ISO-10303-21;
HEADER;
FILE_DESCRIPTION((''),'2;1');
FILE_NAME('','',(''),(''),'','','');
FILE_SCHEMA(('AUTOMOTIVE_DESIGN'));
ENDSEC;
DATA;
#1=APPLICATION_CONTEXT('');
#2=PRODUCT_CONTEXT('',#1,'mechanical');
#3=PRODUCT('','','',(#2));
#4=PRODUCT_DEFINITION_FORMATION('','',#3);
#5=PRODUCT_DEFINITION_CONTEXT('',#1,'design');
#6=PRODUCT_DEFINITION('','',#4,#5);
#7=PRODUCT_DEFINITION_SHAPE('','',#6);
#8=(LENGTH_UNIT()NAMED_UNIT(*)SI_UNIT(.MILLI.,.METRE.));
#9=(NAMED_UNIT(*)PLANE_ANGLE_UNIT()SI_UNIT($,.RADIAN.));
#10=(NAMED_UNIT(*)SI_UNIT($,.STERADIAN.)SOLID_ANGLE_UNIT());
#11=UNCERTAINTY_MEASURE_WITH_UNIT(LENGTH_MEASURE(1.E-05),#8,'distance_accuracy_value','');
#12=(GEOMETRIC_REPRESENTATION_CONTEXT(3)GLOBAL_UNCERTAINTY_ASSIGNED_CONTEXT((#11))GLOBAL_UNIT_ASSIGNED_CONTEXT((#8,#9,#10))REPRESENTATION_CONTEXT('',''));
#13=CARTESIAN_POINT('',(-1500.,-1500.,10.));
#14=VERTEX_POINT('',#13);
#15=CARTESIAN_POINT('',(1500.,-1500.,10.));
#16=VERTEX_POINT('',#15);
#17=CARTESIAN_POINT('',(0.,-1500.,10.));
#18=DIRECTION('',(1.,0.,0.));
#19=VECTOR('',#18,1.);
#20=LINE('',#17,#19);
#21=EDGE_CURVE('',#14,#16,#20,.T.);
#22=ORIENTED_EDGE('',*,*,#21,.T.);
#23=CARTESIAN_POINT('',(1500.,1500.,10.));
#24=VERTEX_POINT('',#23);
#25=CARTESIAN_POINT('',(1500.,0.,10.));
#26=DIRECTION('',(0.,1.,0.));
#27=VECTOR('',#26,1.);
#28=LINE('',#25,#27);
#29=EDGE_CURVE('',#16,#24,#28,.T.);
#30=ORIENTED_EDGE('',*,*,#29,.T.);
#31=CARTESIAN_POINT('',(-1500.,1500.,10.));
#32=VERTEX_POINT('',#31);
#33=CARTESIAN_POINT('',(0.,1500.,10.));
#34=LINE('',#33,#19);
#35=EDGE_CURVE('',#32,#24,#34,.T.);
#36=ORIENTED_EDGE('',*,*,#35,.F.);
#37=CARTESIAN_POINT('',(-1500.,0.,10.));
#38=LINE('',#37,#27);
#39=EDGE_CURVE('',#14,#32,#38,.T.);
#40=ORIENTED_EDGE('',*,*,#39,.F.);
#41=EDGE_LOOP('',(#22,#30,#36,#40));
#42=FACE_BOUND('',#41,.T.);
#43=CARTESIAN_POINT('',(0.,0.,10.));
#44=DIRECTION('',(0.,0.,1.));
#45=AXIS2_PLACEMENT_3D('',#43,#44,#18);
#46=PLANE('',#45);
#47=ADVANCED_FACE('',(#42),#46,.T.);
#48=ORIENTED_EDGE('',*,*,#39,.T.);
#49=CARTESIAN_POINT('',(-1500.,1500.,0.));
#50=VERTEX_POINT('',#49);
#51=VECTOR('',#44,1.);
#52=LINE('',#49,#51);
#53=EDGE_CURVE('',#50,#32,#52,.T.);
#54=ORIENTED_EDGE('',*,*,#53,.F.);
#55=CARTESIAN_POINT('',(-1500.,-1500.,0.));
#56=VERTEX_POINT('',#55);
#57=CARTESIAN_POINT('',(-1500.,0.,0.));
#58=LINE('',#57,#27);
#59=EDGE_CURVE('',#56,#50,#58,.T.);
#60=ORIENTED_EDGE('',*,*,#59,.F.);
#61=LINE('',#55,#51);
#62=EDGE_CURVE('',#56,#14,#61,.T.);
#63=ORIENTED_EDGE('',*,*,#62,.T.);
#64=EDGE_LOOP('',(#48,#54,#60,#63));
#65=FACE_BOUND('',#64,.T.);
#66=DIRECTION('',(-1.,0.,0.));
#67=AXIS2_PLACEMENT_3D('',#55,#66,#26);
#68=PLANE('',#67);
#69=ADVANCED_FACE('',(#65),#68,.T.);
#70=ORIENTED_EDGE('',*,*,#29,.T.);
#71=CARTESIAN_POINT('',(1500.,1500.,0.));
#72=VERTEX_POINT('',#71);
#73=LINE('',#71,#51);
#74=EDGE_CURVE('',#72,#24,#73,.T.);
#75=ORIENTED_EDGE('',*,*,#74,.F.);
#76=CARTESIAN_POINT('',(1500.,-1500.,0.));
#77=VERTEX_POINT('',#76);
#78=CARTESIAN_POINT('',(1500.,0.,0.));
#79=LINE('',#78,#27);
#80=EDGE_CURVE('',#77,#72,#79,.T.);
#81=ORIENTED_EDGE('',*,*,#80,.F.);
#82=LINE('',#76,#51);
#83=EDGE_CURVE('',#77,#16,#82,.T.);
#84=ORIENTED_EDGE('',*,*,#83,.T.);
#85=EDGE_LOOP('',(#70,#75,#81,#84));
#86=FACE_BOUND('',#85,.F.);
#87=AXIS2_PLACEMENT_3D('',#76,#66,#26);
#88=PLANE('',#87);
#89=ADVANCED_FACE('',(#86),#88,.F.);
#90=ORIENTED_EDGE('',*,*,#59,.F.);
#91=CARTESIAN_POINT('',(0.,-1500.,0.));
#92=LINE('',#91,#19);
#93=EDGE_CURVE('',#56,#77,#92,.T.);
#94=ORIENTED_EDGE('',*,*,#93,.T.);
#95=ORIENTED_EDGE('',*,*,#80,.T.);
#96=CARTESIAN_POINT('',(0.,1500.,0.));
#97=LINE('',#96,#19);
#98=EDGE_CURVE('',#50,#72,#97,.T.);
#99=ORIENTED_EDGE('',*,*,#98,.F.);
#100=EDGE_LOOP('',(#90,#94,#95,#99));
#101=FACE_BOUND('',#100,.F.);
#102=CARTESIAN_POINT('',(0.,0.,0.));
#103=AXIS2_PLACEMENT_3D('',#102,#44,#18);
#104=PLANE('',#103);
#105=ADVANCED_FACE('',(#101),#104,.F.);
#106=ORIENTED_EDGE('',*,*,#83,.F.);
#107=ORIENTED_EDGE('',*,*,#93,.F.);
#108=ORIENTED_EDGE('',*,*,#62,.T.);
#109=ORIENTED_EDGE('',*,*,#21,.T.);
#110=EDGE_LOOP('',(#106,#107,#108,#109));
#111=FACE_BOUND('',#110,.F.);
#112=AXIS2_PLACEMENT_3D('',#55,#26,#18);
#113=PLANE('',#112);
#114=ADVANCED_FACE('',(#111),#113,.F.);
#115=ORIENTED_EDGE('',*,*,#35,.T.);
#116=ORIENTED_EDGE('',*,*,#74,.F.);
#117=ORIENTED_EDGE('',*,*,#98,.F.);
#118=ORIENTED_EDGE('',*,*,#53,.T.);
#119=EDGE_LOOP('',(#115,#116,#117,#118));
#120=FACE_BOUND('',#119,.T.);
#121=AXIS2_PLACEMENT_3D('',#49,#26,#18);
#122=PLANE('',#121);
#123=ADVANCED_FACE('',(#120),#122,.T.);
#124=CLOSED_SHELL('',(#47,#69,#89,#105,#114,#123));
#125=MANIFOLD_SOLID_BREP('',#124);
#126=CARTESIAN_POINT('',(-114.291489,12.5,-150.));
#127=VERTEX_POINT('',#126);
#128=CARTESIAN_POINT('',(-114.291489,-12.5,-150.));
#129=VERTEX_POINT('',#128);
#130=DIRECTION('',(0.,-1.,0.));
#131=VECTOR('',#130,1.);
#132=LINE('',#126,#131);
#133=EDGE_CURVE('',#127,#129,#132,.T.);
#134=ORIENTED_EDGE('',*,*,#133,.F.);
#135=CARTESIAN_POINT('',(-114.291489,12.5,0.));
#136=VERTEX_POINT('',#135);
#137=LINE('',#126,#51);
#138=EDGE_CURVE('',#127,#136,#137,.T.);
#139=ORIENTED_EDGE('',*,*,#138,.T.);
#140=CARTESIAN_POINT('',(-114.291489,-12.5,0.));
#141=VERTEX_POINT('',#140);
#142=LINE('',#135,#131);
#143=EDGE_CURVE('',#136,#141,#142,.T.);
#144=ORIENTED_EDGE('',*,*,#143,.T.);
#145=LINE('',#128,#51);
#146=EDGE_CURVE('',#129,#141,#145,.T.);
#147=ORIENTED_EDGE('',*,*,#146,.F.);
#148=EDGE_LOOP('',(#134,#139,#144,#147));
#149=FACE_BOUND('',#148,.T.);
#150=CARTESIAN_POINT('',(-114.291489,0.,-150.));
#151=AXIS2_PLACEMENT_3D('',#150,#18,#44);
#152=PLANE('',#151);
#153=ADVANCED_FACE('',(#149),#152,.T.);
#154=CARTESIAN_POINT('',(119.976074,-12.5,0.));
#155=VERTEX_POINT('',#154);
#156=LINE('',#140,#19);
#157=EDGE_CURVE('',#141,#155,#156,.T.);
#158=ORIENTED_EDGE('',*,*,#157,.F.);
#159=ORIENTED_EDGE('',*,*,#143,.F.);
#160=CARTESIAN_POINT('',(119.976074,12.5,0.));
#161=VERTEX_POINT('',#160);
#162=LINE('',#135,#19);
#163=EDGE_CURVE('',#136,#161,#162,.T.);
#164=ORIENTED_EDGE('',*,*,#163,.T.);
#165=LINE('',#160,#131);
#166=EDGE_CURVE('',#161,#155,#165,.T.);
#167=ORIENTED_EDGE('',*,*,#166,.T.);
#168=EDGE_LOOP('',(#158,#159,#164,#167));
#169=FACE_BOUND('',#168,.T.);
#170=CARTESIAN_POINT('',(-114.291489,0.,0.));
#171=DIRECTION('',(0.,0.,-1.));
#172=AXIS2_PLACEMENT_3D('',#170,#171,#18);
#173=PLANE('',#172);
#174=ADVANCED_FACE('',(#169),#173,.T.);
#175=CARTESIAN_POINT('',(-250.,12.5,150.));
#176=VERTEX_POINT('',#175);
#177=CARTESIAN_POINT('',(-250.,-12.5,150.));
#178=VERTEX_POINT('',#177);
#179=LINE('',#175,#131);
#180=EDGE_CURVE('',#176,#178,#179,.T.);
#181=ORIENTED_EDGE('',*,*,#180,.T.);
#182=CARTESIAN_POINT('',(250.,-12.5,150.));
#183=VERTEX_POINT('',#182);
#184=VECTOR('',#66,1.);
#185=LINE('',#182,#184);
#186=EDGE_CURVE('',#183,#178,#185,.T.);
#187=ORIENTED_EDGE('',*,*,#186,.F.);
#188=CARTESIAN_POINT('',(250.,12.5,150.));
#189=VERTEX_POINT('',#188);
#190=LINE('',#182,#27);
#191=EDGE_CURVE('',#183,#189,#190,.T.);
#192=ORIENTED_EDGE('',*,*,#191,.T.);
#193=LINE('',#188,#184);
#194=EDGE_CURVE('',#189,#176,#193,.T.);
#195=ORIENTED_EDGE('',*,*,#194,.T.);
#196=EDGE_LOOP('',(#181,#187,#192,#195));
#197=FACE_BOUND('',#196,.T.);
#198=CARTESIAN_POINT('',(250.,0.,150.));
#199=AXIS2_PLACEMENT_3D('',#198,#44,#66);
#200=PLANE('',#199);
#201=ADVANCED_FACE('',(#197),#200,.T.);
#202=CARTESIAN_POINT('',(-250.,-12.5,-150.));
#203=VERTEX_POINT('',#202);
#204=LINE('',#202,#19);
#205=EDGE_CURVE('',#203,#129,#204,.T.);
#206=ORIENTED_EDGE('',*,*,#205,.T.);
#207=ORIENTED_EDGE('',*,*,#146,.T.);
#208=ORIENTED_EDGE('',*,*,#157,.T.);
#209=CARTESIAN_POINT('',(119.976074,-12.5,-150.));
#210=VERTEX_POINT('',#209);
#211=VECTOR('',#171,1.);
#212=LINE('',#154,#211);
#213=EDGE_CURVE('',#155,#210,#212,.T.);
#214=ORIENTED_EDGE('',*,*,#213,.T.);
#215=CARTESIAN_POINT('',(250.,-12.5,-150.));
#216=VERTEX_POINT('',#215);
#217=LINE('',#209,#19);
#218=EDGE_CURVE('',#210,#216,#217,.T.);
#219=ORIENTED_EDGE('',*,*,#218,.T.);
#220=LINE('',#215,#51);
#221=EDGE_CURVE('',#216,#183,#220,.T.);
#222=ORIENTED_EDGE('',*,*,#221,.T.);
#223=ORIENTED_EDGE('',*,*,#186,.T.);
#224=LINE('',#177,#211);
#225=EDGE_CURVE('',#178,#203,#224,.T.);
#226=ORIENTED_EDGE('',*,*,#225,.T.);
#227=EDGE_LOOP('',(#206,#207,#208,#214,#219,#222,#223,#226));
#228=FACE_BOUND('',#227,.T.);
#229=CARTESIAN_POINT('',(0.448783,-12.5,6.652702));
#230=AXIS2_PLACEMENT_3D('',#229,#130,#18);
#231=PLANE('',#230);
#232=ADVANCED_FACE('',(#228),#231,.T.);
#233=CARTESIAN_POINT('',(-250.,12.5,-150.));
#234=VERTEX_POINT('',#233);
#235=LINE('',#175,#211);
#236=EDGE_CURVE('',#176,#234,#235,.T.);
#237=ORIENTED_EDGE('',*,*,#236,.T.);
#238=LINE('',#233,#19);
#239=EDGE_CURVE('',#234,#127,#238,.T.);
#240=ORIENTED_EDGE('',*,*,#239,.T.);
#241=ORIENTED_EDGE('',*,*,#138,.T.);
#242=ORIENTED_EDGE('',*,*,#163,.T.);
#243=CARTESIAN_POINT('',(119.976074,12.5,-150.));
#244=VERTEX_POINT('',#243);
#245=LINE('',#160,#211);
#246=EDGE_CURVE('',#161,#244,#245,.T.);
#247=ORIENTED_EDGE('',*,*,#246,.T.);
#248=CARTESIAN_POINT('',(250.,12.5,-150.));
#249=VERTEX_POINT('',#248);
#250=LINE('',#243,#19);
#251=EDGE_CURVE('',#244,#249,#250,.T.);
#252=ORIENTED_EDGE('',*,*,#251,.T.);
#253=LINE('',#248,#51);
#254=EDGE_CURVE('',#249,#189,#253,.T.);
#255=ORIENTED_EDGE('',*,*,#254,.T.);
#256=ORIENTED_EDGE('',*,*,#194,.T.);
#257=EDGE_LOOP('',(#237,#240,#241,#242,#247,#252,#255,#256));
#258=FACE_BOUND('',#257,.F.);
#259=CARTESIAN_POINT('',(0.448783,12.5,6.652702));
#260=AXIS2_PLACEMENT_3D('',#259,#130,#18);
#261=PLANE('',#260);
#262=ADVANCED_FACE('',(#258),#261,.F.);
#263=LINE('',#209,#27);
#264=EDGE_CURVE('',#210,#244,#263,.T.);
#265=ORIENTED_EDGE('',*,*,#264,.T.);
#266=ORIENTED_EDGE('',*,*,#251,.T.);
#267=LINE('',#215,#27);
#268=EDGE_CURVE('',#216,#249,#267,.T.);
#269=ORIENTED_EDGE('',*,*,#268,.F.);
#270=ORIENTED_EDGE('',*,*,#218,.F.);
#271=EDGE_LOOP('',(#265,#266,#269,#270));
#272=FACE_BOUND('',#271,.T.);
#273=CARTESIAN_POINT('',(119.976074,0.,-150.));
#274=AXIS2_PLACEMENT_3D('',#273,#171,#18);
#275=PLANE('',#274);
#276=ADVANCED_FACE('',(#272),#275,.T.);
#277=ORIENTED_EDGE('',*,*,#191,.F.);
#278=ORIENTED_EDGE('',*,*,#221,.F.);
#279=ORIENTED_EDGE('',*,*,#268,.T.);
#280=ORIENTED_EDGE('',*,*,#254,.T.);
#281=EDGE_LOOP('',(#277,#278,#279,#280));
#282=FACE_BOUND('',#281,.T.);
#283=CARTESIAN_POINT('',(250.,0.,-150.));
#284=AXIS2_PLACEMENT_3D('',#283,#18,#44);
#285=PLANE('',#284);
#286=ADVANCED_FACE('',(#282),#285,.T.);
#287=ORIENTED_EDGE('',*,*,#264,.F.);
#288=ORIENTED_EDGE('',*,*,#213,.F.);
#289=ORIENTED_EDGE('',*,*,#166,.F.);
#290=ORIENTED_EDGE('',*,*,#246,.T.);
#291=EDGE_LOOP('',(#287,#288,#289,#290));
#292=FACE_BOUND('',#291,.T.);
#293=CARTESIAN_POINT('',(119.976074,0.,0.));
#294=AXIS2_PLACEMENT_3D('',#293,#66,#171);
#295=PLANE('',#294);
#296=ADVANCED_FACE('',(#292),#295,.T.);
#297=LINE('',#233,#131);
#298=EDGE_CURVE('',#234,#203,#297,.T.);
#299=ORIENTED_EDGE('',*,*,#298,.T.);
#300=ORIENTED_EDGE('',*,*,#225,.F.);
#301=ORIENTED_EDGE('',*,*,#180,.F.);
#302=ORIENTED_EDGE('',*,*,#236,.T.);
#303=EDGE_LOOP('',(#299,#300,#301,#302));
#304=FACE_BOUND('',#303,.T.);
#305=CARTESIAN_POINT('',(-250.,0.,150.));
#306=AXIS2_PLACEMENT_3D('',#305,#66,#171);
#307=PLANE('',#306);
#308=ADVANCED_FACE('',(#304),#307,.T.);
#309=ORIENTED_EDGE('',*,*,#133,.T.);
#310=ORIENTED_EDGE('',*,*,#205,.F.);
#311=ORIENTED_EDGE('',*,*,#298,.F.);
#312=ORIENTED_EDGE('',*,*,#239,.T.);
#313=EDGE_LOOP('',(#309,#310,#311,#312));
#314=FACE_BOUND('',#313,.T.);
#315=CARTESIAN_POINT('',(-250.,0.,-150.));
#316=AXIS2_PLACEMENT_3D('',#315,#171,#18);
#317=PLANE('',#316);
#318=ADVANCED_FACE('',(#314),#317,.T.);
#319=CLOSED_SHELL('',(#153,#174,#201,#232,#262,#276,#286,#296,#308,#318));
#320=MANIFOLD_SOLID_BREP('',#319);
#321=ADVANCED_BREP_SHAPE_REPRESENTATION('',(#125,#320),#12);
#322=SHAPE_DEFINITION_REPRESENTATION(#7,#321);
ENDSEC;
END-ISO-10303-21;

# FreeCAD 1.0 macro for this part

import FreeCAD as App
import Part
import Sketcher
from FreeCAD import Vector
Q = App.Units.Quantity

doc = App.newDocument("Part")
body = doc.addObject("PartDesign::Body", "Body")

# Sketch on XY plane
sketch1 = body.newObject("Sketcher::SketchObject", "Sketch")
sketch1.AttachmentSupport = (doc.getObject("XY_Plane"), [""])
sketch1.MapMode = "FlatFace"
sketch1.addGeometry([
    Part.LineSegment(Vector(-1500, 1500, 0), Vector(-1500, -1500, 0)),
    Part.LineSegment(Vector(-1500, -1500, 0), Vector(1500, -1500, 0)),
    Part.LineSegment(Vector(1500, -1500, 0), Vector(1500, 1500, 0)),
    Part.LineSegment(Vector(1500, 1500, 0), Vector(-1500, 1500, 0)),
], False)
sketch1.addConstraint([
    Sketcher.Constraint("Coincident", 0, 2, 1, 1),
    Sketcher.Constraint("Coincident", 1, 2, 2, 1),
    Sketcher.Constraint("Coincident", 2, 2, 3, 1),
    Sketcher.Constraint("Coincident", 3, 2, 0, 1),
    Sketcher.Constraint("Vertical", 0),
    Sketcher.Constraint("Horizontal", 1),
    Sketcher.Constraint("Vertical", 2),
    Sketcher.Constraint("Horizontal", 3),
    Sketcher.Constraint("Symmetric", 0, 2, 2, 2, -1, 1),
    Sketcher.Constraint("Equal", 3, 0),
    Sketcher.Constraint("DistanceX", 1, 1, 1, 2, Q("3000 mm")),
])
pad1 = body.newObject("PartDesign::Pad", "Pad")
pad1.Profile = sketch1
pad1.Length = 10
body2 = doc.addObject("PartDesign::Body", "Body001")

# Sketch on XZ plane
sketch2 = body2.newObject("Sketcher::SketchObject", "Sketch001")
sketch2.AttachmentSupport = (doc.getObject("XZ_Plane001"), [""])
sketch2.MapMode = "FlatFace"
sketch2.addGeometry([
    Part.LineSegment(Vector(250, 150, 0), Vector(-250, 150, 0)),  # 0
    Part.LineSegment(Vector(-250, 150, 0), Vector(-250, -150, 0)),  # 1
    Part.LineSegment(Vector(-250, -150, 0), Vector(-114, -150, 0)),  # 2
    Part.LineSegment(Vector(-114, -150, 0), Vector(-114, 0, 0)),  # 3
    Part.LineSegment(Vector(-114, 0, 0), Vector(120, 0, 0)),  # 4
    Part.LineSegment(Vector(120, 0, 0), Vector(120, -150, 0)),  # 5
    Part.LineSegment(Vector(120, -150, 0), Vector(250, -150, 0)),  # 6
    Part.LineSegment(Vector(250, -150, 0), Vector(250, 150, 0)),  # 7
], False)
sketch2.addConstraint([
    Sketcher.Constraint("Coincident", 0, 2, 1, 1),
    Sketcher.Constraint("Coincident", 1, 2, 2, 1),
    Sketcher.Constraint("Coincident", 2, 2, 3, 1),
    Sketcher.Constraint("Coincident", 3, 2, 4, 1),
    Sketcher.Constraint("Coincident", 4, 2, 5, 1),
    Sketcher.Constraint("Coincident", 5, 2, 6, 1),
    Sketcher.Constraint("Coincident", 6, 2, 7, 1),
    Sketcher.Constraint("Coincident", 7, 2, 0, 1),
    Sketcher.Constraint("Horizontal", 0),
    Sketcher.Constraint("Vertical", 1),
    Sketcher.Constraint("Horizontal", 2),
    Sketcher.Constraint("Vertical", 3),
    Sketcher.Constraint("Horizontal", 4),
    Sketcher.Constraint("Vertical", 5),
    Sketcher.Constraint("Horizontal", 6),
    Sketcher.Constraint("Vertical", 7),
    Sketcher.Constraint("Symmetric", 0, 2, 6, 2, -1, 1),
    Sketcher.Constraint("PointOnObject", 3, 2, -1),
    Sketcher.Constraint("Horizontal", 2, 2, 5, 2),
    Sketcher.Constraint("DistanceX", 0, 2, 0, 1, Q("500 mm")),
    Sketcher.Constraint("DistanceY", 1, 2, 1, 1, Q("300 mm")),
    Sketcher.Constraint("DistanceX", 2, 1, 2, 2, Q("135.708511 mm")),
    Sketcher.Constraint("DistanceX", 4, 1, 4, 2, Q("234.267563 mm")),
])
pad2 = body2.newObject("PartDesign::Pad", "Pad001")
pad2.Profile = sketch2
pad2.Length = 25
pad2.Midplane = True

doc.recompute()
